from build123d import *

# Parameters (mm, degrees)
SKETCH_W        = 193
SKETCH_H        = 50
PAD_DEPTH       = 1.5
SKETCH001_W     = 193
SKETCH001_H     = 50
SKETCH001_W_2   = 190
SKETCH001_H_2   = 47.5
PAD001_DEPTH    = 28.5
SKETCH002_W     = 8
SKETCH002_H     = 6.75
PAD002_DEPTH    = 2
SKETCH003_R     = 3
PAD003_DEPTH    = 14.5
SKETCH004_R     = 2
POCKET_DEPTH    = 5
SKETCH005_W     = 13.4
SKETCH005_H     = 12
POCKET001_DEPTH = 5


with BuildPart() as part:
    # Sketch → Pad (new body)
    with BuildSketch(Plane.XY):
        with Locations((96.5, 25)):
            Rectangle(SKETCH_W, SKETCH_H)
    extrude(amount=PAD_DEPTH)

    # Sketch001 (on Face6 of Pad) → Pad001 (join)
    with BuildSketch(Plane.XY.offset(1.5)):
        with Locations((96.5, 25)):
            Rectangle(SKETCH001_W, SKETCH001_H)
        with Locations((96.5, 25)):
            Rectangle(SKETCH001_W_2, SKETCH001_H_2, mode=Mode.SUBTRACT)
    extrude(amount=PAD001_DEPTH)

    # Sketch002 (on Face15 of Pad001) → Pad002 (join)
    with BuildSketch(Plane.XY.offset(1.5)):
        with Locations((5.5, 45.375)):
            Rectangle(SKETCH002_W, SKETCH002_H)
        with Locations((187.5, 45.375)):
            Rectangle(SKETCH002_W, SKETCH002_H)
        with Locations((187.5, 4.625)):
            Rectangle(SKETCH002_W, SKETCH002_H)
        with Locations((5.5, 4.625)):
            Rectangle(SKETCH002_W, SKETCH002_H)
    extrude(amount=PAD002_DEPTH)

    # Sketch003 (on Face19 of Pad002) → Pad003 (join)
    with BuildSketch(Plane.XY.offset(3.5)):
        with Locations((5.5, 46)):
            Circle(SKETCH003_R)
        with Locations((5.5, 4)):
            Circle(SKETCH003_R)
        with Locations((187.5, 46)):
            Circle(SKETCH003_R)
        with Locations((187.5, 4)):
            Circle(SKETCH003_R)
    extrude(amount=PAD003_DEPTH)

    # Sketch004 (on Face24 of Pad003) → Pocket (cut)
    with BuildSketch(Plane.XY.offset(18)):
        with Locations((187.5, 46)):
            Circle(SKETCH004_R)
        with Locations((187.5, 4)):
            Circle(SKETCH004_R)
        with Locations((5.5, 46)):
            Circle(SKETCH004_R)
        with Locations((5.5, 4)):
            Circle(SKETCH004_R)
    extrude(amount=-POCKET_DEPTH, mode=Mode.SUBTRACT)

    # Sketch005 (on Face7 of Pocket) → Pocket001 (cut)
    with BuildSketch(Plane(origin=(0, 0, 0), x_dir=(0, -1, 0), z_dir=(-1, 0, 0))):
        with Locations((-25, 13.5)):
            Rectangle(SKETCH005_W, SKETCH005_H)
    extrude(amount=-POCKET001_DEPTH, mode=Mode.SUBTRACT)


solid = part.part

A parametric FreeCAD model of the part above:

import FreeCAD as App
import Part
import Sketcher
Q = App.Units.Quantity


def add_polygon(sketch, points):
    """Adds a closed chain of lines whose ends are joined by coincident constraints."""
    first, n = sketch.GeometryCount, len(points)
    for a, b in zip(points, points[1:] + points[:1]):
        sketch.addGeometry(Part.LineSegment(App.Vector(*a, 0), App.Vector(*b, 0)), False)
    for i in range(n):
        sketch.addConstraint(Sketcher.Constraint("Coincident", first + i, 2, first + (i + 1) % n, 1))

doc = App.newDocument("Part")
body = doc.addObject("PartDesign::Body", "Body")

# Sketch on XY plane
sketch1 = body.newObject("Sketcher::SketchObject", "Sketch")
sketch1.AttachmentSupport = (doc.getObject("XY_Plane"), [""])
sketch1.MapMode = "FlatFace"
add_polygon(sketch1, [(0, 50), (0, 0), (193, 0), (193, 50)])  # lines 0-3
sketch1.addConstraint(Sketcher.Constraint("Vertical", 0))
sketch1.addConstraint(Sketcher.Constraint("Horizontal", 1))
sketch1.addConstraint(Sketcher.Constraint("Vertical", 2))
sketch1.addConstraint(Sketcher.Constraint("Horizontal", 3))
sketch1.addConstraint(Sketcher.Constraint("Coincident", 0, 2, -1, 1))
sketch1.addConstraint(Sketcher.Constraint("DistanceX", 1, 1, 1, 2, Q("193 mm")))
sketch1.addConstraint(Sketcher.Constraint("DistanceY", 0, 2, 0, 1, Q("50 mm")))
pad1 = body.newObject("PartDesign::Pad", "Pad")
pad1.Profile = sketch1
pad1.Length = 1.5

# Sketch on XY plane
sketch2 = body.newObject("Sketcher::SketchObject", "Sketch001")
sketch2.AttachmentSupport = (doc.getObject("XY_Plane"), [""])
sketch2.MapMode = "FlatFace"
sketch2.AttachmentOffset = App.Placement(App.Vector(0, 0, 1.5), App.Rotation())
add_polygon(sketch2, [(0, 50), (0, 0), (193, 0), (193, 50)])  # lines 0-3
add_polygon(sketch2, [(191.5, 1.25), (1.5, 1.25), (1.5, 48.75), (191.5, 48.75)])  # lines 4-7
sketch2.addConstraint(Sketcher.Constraint("Vertical", 0))
sketch2.addConstraint(Sketcher.Constraint("Horizontal", 1))
sketch2.addConstraint(Sketcher.Constraint("Vertical", 2))
sketch2.addConstraint(Sketcher.Constraint("Horizontal", 3))
sketch2.addConstraint(Sketcher.Constraint("Horizontal", 4))
sketch2.addConstraint(Sketcher.Constraint("Vertical", 5))
sketch2.addConstraint(Sketcher.Constraint("Horizontal", 6))
sketch2.addConstraint(Sketcher.Constraint("Vertical", 7))
sketch2.addConstraint(Sketcher.Constraint("Coincident", 0, 2, -1, 1))
sketch2.addConstraint(Sketcher.Constraint("DistanceX", 1, 1, 1, 2, Q("193 mm")))
sketch2.addConstraint(Sketcher.Constraint("DistanceX", 4, 2, 4, 1, Q("190 mm")))
sketch2.addConstraint(Sketcher.Constraint("DistanceY", 0, 2, 0, 1, Q("50 mm")))
sketch2.addConstraint(Sketcher.Constraint("DistanceY", 5, 1, 5, 2, Q("47.5 mm")))
sketch2.addConstraint(Sketcher.Constraint("DistanceX", -1, 1, 4, 2, Q("1.5 mm")))
sketch2.addConstraint(Sketcher.Constraint("DistanceY", -1, 1, 4, 2, Q("1.25 mm")))
pad2 = body.newObject("PartDesign::Pad", "Pad001")
pad2.Profile = sketch2
pad2.Length = 28.5

# Sketch on XY plane
sketch3 = body.newObject("Sketcher::SketchObject", "Sketch002")
sketch3.AttachmentSupport = (doc.getObject("XY_Plane"), [""])
sketch3.MapMode = "FlatFace"
sketch3.AttachmentOffset = App.Placement(App.Vector(0, 0, 1.5), App.Rotation())
add_polygon(sketch3, [(1.5, 48.75), (1.5, 42), (9.5, 42), (9.5, 48.75)])  # lines 0-3
add_polygon(sketch3, [(183.5, 48.75), (183.5, 42), (191.5, 42), (191.5, 48.75)])  # lines 4-7
add_polygon(sketch3, [(183.5, 8), (183.5, 1.25), (191.5, 1.25), (191.5, 8)])  # lines 8-11
add_polygon(sketch3, [(1.5, 8), (1.5, 1.25), (9.5, 1.25), (9.5, 8)])  # lines 12-15
sketch3.addConstraint(Sketcher.Constraint("Vertical", 0))
sketch3.addConstraint(Sketcher.Constraint("Horizontal", 1))
sketch3.addConstraint(Sketcher.Constraint("Vertical", 2))
sketch3.addConstraint(Sketcher.Constraint("Horizontal", 3))
sketch3.addConstraint(Sketcher.Constraint("Vertical", 4))
sketch3.addConstraint(Sketcher.Constraint("Horizontal", 5))
sketch3.addConstraint(Sketcher.Constraint("Vertical", 6))
sketch3.addConstraint(Sketcher.Constraint("Horizontal", 7))
sketch3.addConstraint(Sketcher.Constraint("Vertical", 8))
sketch3.addConstraint(Sketcher.Constraint("Horizontal", 9))
sketch3.addConstraint(Sketcher.Constraint("Vertical", 10))
sketch3.addConstraint(Sketcher.Constraint("Horizontal", 11))
sketch3.addConstraint(Sketcher.Constraint("Vertical", 12))
sketch3.addConstraint(Sketcher.Constraint("Horizontal", 13))
sketch3.addConstraint(Sketcher.Constraint("Vertical", 14))
sketch3.addConstraint(Sketcher.Constraint("Horizontal", 15))
sketch3.addConstraint(Sketcher.Constraint("Horizontal", 1, 2, 4, 2))
sketch3.addConstraint(Sketcher.Constraint("Horizontal", 3, 2, 6, 2))
sketch3.addConstraint(Sketcher.Constraint("Horizontal", 9, 2, 12, 2))
sketch3.addConstraint(Sketcher.Constraint("Horizontal", 11, 2, 14, 2))
sketch3.addConstraint(Sketcher.Constraint("Vertical", 7, 2, 8, 2))
sketch3.addConstraint(Sketcher.Constraint("Vertical", 6, 2, 9, 2))
sketch3.addConstraint(Sketcher.Constraint("Vertical", 3, 2, 12, 2))
sketch3.addConstraint(Sketcher.Constraint("Vertical", 2, 2, 13, 2))
sketch3.addConstraint(Sketcher.Constraint("Equal", 3, 5))
sketch3.addConstraint(Sketcher.Constraint("Equal", 6, 8))
sketch3.addConstraint(Sketcher.Constraint("DistanceX", 1, 1, 1, 2, Q("8 mm")))
sketch3.addConstraint(Sketcher.Constraint("DistanceY", -1, 1, 0, 2, Q("42 mm")))
sketch3.addConstraint(Sketcher.Constraint("DistanceY", -1, 1, 10, 2, Q("8 mm")))
sketch3.addConstraint(Sketcher.Constraint("DistanceX", 1, 2, 4, 2, Q("174 mm")))
sketch3.addConstraint(Sketcher.Constraint("DistanceY", 0, 2, 0, 1, Q("6.75 mm")))
sketch3.addConstraint(Sketcher.Constraint("DistanceX", -1, 1, 0, 2, Q("1.5 mm")))
pad3 = body.newObject("PartDesign::Pad", "Pad002")
pad3.Profile = sketch3
pad3.Length = 2

# Sketch on XY plane
sketch4 = body.newObject("Sketcher::SketchObject", "Sketch003")
sketch4.AttachmentSupport = (doc.getObject("XY_Plane"), [""])
sketch4.MapMode = "FlatFace"
sketch4.AttachmentOffset = App.Placement(App.Vector(0, 0, 3.5), App.Rotation())
sketch4.addGeometry(Part.Circle(App.Vector(5.5, 46, 0), App.Vector(0, 0, 1), 3), False)
sketch4.addGeometry(Part.Circle(App.Vector(5.5, 4, 0), App.Vector(0, 0, 1), 3), False)
sketch4.addGeometry(Part.Circle(App.Vector(187.5, 46, 0), App.Vector(0, 0, 1), 3), False)
sketch4.addGeometry(Part.Circle(App.Vector(187.5, 4, 0), App.Vector(0, 0, 1), 3), False)
sketch4.addConstraint(Sketcher.Constraint("Equal", 0, 1))
sketch4.addConstraint(Sketcher.Constraint("Equal", 1, 2))
sketch4.addConstraint(Sketcher.Constraint("Equal", 2, 3))
sketch4.addConstraint(Sketcher.Constraint("Horizontal", 0, 3, 2, 3))
sketch4.addConstraint(Sketcher.Constraint("Horizontal", 1, 3, 3, 3))
sketch4.addConstraint(Sketcher.Constraint("Vertical", 0, 3, 1, 3))
sketch4.addConstraint(Sketcher.Constraint("Vertical", 2, 3, 3, 3))
sketch4.addConstraint(Sketcher.Constraint("Diameter", 0, Q("6 mm")))
sketch4.addConstraint(Sketcher.Constraint("DistanceY", -1, 1, 0, 3, Q("46 mm")))
sketch4.addConstraint(Sketcher.Constraint("DistanceY", -1, 1, 1, 3, Q("4 mm")))
sketch4.addConstraint(Sketcher.Constraint("DistanceX", 0, 3, 2, 3, Q("182 mm")))
sketch4.addConstraint(Sketcher.Constraint("DistanceX", -1, 1, 0, 3, Q("5.5 mm")))
pad4 = body.newObject("PartDesign::Pad", "Pad003")
pad4.Profile = sketch4
pad4.Length = 14.5

# Sketch on XY plane
sketch5 = body.newObject("Sketcher::SketchObject", "Sketch004")
sketch5.AttachmentSupport = (doc.getObject("XY_Plane"), [""])
sketch5.MapMode = "FlatFace"
sketch5.AttachmentOffset = App.Placement(App.Vector(0, 0, 18), App.Rotation())
sketch5.addGeometry(Part.Circle(App.Vector(187.5, 46, 0), App.Vector(0, 0, 1), 2), False)
sketch5.addGeometry(Part.Circle(App.Vector(187.5, 4, 0), App.Vector(0, 0, 1), 2), False)
sketch5.addGeometry(Part.Circle(App.Vector(5.5, 46, 0), App.Vector(0, 0, 1), 2), False)
sketch5.addGeometry(Part.Circle(App.Vector(5.5, 4, 0), App.Vector(0, 0, 1), 2), False)
sketch5.addConstraint(Sketcher.Constraint("Equal", 0, 1))
sketch5.addConstraint(Sketcher.Constraint("Equal", 1, 2))
sketch5.addConstraint(Sketcher.Constraint("Equal", 2, 3))
sketch5.addConstraint(Sketcher.Constraint("Horizontal", 0, 3, 2, 3))
sketch5.addConstraint(Sketcher.Constraint("Horizontal", 1, 3, 3, 3))
sketch5.addConstraint(Sketcher.Constraint("Vertical", 0, 3, 1, 3))
sketch5.addConstraint(Sketcher.Constraint("Vertical", 2, 3, 3, 3))
sketch5.addConstraint(Sketcher.Constraint("Diameter", 0, Q("4 mm")))
sketch5.addConstraint(Sketcher.Constraint("DistanceY", -1, 1, 0, 3, Q("46 mm")))
sketch5.addConstraint(Sketcher.Constraint("DistanceY", -1, 1, 1, 3, Q("4 mm")))
sketch5.addConstraint(Sketcher.Constraint("DistanceX", 2, 3, 0, 3, Q("182 mm")))
sketch5.addConstraint(Sketcher.Constraint("DistanceX", -1, 1, 0, 3, Q("187.5 mm")))
pocket1 = body.newObject("PartDesign::Pocket", "Pocket")
pocket1.Profile = sketch5
pocket1.Length = 5

# Sketch on YZ plane
sketch6 = body.newObject("Sketcher::SketchObject", "Sketch005")
sketch6.AttachmentSupport = (doc.getObject("YZ_Plane"), [""])
sketch6.MapMode = "FlatFace"
add_polygon(sketch6, [(31.7, 19.5), (31.7, 7.5), (18.3, 7.5), (18.3, 19.5)])  # lines 0-3
sketch6.addConstraint(Sketcher.Constraint("Vertical", 0))
sketch6.addConstraint(Sketcher.Constraint("Horizontal", 1))
sketch6.addConstraint(Sketcher.Constraint("Vertical", 2))
sketch6.addConstraint(Sketcher.Constraint("Horizontal", 3))
sketch6.addConstraint(Sketcher.Constraint("DistanceY", 0, 2, 0, 1, Q("12 mm")))
sketch6.addConstraint(Sketcher.Constraint("DistanceX", 1, 2, 1, 1, Q("13.4 mm")))
sketch6.addConstraint(Sketcher.Constraint("DistanceX", -1, 1, 0, 2, Q("31.7 mm")))
sketch6.addConstraint(Sketcher.Constraint("DistanceY", -1, 1, 0, 2, Q("7.5 mm")))
pocket2 = body.newObject("PartDesign::Pocket", "Pocket001")
pocket2.Profile = sketch6
pocket2.Length = 5
pocket2.Reversed = True

doc.recompute()
